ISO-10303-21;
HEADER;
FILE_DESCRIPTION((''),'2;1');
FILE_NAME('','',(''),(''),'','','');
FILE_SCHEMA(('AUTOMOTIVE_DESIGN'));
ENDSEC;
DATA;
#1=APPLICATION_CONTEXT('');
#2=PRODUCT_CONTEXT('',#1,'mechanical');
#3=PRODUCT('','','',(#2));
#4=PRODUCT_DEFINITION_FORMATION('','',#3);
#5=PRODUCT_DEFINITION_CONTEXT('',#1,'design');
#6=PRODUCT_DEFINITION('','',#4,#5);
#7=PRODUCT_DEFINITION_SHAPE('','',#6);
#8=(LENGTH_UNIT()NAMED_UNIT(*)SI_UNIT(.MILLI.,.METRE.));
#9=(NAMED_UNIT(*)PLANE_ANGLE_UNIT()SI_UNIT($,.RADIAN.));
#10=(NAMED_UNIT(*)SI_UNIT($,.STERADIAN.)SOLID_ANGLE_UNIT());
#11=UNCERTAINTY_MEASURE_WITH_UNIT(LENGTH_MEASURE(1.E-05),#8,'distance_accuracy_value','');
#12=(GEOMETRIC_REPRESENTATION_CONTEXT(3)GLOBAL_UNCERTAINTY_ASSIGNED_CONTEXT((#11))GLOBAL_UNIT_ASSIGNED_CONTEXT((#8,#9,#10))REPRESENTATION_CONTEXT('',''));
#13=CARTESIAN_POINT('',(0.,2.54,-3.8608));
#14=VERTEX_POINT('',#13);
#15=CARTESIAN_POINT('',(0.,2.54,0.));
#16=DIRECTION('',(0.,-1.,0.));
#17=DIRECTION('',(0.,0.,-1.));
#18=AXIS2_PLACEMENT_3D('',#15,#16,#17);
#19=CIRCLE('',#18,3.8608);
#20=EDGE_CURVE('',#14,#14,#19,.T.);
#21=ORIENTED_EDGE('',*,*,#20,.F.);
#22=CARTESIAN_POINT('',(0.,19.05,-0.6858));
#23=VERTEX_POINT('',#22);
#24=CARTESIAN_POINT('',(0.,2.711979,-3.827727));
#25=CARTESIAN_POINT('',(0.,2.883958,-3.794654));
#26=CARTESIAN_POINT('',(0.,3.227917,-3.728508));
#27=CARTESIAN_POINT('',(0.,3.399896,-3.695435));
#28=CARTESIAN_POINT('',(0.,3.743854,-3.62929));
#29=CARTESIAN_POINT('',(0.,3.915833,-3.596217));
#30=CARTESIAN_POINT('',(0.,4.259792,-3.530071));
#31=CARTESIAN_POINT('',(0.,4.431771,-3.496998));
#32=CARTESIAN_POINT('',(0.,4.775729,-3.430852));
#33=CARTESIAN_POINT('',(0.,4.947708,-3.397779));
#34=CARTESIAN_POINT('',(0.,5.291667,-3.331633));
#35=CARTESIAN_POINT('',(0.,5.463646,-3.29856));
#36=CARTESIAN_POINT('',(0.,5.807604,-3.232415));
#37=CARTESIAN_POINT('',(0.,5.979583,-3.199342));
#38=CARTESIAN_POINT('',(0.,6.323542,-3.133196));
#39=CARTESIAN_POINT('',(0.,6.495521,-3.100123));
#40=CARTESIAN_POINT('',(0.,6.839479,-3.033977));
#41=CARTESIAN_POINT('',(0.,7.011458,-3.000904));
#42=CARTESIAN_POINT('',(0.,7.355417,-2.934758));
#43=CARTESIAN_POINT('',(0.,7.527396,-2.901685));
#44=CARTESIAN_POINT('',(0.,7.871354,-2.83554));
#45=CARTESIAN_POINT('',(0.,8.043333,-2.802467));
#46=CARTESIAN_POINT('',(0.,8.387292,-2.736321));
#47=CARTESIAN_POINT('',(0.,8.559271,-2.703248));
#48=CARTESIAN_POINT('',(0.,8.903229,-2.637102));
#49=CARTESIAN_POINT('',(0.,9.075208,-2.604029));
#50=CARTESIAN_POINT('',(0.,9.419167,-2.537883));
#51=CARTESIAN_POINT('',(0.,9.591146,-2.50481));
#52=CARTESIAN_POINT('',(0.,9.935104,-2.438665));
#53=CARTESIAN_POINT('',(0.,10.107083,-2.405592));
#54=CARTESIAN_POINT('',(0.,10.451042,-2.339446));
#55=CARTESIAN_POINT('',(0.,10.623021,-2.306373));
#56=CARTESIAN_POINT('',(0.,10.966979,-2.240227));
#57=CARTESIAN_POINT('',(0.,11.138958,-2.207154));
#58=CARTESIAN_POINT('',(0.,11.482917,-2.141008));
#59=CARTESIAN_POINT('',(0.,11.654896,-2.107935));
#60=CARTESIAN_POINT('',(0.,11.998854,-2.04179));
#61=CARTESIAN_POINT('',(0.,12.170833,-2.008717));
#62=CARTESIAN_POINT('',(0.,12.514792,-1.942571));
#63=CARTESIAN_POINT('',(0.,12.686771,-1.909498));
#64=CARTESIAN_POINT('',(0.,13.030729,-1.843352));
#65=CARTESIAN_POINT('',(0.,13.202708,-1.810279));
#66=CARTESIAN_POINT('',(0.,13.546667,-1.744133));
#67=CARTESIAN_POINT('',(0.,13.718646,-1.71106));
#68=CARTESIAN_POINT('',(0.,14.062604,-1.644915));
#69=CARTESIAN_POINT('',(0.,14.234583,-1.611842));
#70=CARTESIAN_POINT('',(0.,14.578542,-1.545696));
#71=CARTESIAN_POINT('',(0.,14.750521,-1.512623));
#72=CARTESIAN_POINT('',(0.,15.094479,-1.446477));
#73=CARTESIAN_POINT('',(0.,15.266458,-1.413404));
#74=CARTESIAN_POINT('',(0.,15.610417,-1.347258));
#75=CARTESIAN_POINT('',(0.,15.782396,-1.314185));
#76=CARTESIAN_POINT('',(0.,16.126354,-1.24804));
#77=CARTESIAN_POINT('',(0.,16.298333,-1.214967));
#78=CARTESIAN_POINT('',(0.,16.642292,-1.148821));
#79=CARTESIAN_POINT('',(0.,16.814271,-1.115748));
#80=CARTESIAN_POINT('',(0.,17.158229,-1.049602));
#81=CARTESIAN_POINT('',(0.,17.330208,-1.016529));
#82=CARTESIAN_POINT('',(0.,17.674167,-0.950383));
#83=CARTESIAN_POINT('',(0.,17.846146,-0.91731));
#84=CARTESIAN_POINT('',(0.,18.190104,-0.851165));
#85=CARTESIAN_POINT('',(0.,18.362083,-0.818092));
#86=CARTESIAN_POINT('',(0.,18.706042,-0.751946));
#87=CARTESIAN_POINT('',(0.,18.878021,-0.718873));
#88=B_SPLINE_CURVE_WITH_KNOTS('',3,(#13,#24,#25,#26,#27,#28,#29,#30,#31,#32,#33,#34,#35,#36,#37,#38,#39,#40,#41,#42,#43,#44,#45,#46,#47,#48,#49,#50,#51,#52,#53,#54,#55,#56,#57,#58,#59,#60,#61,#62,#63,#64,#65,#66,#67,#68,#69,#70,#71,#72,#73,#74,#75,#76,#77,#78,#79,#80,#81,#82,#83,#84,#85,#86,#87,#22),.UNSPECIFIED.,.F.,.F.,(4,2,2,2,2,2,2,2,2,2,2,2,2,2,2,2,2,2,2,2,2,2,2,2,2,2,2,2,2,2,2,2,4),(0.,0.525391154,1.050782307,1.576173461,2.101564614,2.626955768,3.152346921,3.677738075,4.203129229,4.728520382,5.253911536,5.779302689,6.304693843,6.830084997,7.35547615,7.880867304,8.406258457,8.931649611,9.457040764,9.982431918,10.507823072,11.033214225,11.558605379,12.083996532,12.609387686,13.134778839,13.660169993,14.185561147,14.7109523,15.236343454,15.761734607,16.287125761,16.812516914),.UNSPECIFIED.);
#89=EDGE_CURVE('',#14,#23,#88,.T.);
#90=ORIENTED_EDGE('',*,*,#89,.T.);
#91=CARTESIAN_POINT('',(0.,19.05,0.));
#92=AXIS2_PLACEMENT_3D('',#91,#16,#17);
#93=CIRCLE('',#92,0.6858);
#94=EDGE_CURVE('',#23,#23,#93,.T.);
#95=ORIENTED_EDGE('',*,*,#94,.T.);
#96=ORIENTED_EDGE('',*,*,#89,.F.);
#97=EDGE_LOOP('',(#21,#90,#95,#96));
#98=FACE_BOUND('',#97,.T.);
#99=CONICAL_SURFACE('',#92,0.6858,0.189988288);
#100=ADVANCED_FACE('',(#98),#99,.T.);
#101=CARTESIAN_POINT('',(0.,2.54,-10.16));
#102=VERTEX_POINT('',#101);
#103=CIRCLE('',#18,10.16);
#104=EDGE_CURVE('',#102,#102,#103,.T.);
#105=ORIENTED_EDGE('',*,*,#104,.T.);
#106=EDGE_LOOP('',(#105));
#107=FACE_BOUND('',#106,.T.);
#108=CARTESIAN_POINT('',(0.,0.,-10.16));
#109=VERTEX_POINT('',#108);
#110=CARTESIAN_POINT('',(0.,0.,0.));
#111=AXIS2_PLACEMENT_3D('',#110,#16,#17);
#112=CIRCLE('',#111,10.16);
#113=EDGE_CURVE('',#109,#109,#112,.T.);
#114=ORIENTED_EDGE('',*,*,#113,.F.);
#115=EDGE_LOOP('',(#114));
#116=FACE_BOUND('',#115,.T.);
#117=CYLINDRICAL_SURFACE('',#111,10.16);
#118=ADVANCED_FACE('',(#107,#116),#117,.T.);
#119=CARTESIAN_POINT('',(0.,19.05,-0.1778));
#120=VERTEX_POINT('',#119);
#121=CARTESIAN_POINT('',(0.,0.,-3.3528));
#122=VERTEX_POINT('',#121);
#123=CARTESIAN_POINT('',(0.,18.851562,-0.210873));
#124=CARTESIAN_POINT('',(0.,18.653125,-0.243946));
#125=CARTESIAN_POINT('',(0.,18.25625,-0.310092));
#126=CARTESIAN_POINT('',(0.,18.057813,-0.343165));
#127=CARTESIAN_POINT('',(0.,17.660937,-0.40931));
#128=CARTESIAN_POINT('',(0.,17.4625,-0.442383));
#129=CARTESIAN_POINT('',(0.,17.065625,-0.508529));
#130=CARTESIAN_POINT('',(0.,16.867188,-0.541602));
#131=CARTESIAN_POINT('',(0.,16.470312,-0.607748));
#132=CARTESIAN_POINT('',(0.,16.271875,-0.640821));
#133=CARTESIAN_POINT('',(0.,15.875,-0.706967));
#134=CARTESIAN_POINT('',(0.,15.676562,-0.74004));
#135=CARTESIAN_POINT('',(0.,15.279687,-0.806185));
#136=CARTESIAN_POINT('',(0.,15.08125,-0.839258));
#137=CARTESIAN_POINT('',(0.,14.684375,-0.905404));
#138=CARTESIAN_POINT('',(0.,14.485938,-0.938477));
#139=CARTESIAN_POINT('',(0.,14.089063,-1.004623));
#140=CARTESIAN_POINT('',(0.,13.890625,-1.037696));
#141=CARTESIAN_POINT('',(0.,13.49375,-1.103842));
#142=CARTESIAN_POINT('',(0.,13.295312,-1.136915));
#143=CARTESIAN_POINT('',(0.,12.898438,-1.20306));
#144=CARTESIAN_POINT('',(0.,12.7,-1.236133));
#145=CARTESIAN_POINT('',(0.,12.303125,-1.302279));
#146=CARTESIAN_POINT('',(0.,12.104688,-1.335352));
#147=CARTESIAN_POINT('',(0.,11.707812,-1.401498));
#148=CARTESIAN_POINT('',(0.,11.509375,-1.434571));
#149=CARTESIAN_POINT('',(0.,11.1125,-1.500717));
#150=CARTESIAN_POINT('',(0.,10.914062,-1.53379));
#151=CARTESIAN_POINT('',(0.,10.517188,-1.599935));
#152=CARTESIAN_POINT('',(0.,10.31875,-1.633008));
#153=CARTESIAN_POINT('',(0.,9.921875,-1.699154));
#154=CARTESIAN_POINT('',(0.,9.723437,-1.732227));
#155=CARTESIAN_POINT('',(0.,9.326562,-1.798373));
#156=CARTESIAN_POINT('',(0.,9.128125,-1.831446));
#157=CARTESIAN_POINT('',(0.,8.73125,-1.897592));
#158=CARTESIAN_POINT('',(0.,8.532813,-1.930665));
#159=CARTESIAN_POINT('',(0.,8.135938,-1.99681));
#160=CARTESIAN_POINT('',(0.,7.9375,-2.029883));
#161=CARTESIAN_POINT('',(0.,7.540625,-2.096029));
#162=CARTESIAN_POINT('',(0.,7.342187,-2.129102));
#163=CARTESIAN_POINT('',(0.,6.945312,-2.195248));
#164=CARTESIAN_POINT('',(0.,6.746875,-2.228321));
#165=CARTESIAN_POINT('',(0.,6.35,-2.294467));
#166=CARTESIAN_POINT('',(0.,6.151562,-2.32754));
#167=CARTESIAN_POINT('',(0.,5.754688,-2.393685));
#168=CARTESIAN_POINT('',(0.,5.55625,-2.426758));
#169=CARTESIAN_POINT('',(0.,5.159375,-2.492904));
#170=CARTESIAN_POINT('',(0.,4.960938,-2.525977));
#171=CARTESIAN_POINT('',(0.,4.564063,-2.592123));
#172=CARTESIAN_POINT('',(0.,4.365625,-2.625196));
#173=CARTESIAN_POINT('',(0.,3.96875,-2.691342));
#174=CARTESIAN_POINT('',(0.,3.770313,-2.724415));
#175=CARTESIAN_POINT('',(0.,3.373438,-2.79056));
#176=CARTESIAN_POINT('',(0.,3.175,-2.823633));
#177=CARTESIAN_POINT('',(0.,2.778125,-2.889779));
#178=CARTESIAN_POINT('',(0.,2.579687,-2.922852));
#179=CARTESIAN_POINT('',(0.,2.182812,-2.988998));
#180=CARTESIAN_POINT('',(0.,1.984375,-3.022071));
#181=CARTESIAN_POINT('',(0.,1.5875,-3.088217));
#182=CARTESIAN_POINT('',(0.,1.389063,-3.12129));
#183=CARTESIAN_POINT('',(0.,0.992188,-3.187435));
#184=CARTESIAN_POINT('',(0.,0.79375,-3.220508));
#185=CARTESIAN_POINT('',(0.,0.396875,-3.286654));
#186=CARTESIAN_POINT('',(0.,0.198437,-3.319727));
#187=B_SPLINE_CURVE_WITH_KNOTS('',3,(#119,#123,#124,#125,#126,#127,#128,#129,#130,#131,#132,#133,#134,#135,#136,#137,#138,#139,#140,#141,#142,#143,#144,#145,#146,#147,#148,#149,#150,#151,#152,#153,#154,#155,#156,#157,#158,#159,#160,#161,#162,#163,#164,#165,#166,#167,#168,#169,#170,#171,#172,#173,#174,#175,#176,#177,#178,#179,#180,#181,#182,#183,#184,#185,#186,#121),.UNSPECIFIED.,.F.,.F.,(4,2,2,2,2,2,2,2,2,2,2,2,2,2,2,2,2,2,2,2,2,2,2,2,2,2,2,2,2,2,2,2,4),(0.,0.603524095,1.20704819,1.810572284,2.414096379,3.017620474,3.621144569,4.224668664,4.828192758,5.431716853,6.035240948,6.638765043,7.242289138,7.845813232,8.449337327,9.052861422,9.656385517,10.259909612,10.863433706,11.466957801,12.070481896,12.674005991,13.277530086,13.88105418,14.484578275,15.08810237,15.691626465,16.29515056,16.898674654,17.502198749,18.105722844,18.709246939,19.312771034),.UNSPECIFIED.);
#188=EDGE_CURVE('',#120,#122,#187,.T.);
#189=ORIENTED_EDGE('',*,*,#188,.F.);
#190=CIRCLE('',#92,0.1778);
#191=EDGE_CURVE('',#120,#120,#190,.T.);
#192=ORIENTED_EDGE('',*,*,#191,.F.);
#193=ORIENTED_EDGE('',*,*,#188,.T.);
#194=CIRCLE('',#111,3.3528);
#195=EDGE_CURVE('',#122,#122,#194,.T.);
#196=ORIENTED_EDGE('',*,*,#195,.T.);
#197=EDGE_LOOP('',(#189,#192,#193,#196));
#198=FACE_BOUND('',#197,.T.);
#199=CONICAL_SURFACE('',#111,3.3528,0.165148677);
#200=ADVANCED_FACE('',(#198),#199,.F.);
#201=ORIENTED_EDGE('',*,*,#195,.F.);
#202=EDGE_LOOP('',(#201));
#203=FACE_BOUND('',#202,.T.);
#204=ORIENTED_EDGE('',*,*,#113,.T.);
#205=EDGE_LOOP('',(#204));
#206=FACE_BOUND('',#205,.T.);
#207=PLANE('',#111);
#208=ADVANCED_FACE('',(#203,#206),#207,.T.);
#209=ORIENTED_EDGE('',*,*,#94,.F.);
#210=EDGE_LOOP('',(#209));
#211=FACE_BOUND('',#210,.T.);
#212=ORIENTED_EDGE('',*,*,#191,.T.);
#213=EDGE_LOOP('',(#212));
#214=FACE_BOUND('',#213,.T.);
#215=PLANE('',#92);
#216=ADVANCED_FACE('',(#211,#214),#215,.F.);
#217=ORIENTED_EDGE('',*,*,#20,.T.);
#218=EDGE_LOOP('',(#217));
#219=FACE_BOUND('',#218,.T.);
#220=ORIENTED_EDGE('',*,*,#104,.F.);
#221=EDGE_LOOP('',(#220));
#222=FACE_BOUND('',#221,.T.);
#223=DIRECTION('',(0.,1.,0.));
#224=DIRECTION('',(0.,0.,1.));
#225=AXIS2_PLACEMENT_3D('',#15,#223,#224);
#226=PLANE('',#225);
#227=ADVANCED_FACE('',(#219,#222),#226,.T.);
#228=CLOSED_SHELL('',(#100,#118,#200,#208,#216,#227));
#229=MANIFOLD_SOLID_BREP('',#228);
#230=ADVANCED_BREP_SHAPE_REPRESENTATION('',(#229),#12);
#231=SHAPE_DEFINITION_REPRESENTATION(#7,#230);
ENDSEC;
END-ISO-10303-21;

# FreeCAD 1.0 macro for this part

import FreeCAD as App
import Part
import Sketcher

V = App.Vector
Q = App.Units.Quantity

doc = App.newDocument("Part")
body = doc.addObject("PartDesign::Body", "Body")

# Sketch on XY plane
sketch1 = doc.addObject("Sketcher::SketchObject", "Sketch")
body.addObject(sketch1)
sketch1.AttachmentSupport = (doc.XY_Plane, [""])
sketch1.MapMode = "FlatFace"
sketch1.addGeometry([
    Part.LineSegment(V(10.2, 0, 0), V(10.2, 2.5, 0)),  # 0
    Part.LineSegment(V(10.2, 2.5, 0), V(3.9, 2.5, 0)),  # 1
    Part.LineSegment(V(3.9, 2.5, 0), V(0.7, 19.1, 0)),  # 2
    Part.LineSegment(V(0.7, 19.1, 0), V(0.2, 19.1, 0)),  # 3
    Part.LineSegment(V(0.2, 19.1, 0), V(3.4, 0, 0)),  # 4
    Part.LineSegment(V(3.4, 0, 0), V(10.2, 0, 0)),  # 5
], False)
sketch1.addConstraint([
    Sketcher.Constraint("Coincident", 0, 2, 1, 1),
    Sketcher.Constraint("Coincident", 1, 2, 2, 1),
    Sketcher.Constraint("Coincident", 2, 2, 3, 1),
    Sketcher.Constraint("Coincident", 3, 2, 4, 1),
    Sketcher.Constraint("Coincident", 4, 2, 5, 1),
    Sketcher.Constraint("Coincident", 5, 2, 0, 1),
    Sketcher.Constraint("Vertical", 0),
    Sketcher.Constraint("Horizontal", 1),
    Sketcher.Constraint("Horizontal", 3),
    Sketcher.Constraint("Horizontal", 5),
    Sketcher.Constraint("PointOnObject", 4, 2, -1),
    Sketcher.Constraint("DistanceY", 0, 1, 0, 2, Q("0.1 in")),
    Sketcher.Constraint("DistanceX", 3, 2, 3, 1, Q("0.02 in")),
    Sketcher.Constraint("DistanceX", -1, 1, 0, 2, Q("0.4 in")),
    Sketcher.Constraint("DistanceX", 1, 2, 1, 1, Q("0.248 in")),
    Sketcher.Constraint("DistanceX", 5, 1, 5, 2, Q("0.268 in")),
    Sketcher.Constraint("DistanceY", -1, 1, 2, 2, Q("0.75 in")),
    Sketcher.Constraint("DistanceX", -1, 1, 2, 2, Q("0.027 in")),
])
revolution = doc.addObject("PartDesign::Revolution", "Revolution")
body.addObject(revolution)
revolution.Profile = sketch1
revolution.ReferenceAxis = (sketch1, ["V_Axis"])
revolution.Angle = 360

doc.recompute()
